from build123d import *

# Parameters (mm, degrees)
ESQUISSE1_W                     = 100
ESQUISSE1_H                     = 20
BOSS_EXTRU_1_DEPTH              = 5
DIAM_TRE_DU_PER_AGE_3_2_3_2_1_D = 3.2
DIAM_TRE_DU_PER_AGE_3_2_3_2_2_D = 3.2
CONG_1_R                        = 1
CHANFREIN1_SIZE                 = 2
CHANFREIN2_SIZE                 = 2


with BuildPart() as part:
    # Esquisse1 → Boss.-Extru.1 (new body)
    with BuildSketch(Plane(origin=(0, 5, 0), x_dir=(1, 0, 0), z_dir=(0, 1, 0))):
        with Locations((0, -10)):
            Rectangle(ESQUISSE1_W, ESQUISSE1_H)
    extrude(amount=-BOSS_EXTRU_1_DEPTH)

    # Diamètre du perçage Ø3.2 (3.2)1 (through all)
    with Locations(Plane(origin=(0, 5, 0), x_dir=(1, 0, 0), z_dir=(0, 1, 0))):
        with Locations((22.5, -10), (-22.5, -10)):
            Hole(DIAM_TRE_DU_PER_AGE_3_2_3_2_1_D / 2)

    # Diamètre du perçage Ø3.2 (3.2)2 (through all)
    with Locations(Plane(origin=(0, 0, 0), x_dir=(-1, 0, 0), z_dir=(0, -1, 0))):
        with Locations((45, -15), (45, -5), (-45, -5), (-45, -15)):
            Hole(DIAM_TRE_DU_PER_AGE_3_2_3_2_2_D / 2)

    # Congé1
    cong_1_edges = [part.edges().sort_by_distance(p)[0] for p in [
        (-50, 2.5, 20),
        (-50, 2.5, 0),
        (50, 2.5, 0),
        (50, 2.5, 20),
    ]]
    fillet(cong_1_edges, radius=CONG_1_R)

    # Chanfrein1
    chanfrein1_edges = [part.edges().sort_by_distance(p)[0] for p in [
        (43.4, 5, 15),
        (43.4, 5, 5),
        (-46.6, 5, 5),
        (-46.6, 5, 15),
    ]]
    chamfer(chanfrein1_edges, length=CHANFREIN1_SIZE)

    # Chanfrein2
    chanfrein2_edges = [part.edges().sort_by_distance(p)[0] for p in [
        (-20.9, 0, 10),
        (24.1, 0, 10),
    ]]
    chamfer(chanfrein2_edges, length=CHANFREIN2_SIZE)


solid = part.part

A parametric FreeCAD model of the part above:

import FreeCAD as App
import Part
import Sketcher
Q = App.Units.Quantity


def edges_at(feature, points):
    """Names of the edges that pass closest to the given points."""
    edges = feature.Shape.Edges
    near = lambda p: min(range(len(edges)), key=lambda i: edges[i].distToShape(Part.Vertex(*p))[0])
    return sorted({f"Edge{near(p) + 1}" for p in points})


def add_polygon(sketch, points):
    """Adds a closed chain of lines whose ends are joined by coincident constraints."""
    first, n = sketch.GeometryCount, len(points)
    for a, b in zip(points, points[1:] + points[:1]):
        sketch.addGeometry(Part.LineSegment(App.Vector(*a, 0), App.Vector(*b, 0)), False)
    for i in range(n):
        sketch.addConstraint(Sketcher.Constraint("Coincident", first + i, 2, first + (i + 1) % n, 1))

doc = App.newDocument("Part")
body = doc.addObject("PartDesign::Body", "Body")

sketch1 = body.newObject("Sketcher::SketchObject", "Sketch")
sketch1.AttachmentSupport = (doc.getObject("XZ_Plane"), [""])
sketch1.MapMode = "FlatFace"
sketch1.AttachmentOffset = App.Placement(App.Vector(0, 0, -5), App.Rotation())
add_polygon(sketch1, [(-50, 0), (-50, 20), (50, 20), (50, 0)])
sketch1.addConstraint(Sketcher.Constraint("Vertical", 0))
sketch1.addConstraint(Sketcher.Constraint("Horizontal", 1))
sketch1.addConstraint(Sketcher.Constraint("Vertical", 2))
sketch1.addConstraint(Sketcher.Constraint("Horizontal", 3))
sketch1.addConstraint(Sketcher.Constraint("Symmetric", 2, 2, 3, 2, -1, 1))
sketch1.addConstraint(Sketcher.Constraint("DistanceX", 1, 1, 1, 2, Q("100 mm")))
sketch1.addConstraint(Sketcher.Constraint("DistanceY", 0, 1, 0, 2, Q("20 mm")))
pad1 = body.newObject("PartDesign::Pad", "Pad")
pad1.Profile = sketch1
pad1.Length = 5

sketch2 = body.newObject("Sketcher::SketchObject", "Sketch001")
sketch2.AttachmentSupport = (doc.getObject("XZ_Plane"), [""])
sketch2.MapMode = "FlatFace"
sketch2.AttachmentOffset = App.Placement(App.Vector(0, 0, -5), App.Rotation())
sketch2.addGeometry(Part.Circle(App.Vector(22.5, 10, 0), App.Vector(0, 0, 1), 1.6), False)
sketch2.addGeometry(Part.Circle(App.Vector(-22.5, 10, 0), App.Vector(0, 0, 1), 1.6), False)
sketch2.addConstraint(Sketcher.Constraint("Equal", 0, 1))
sketch2.addConstraint(Sketcher.Constraint("Symmetric", 0, 3, 1, 3, -2))
sketch2.addConstraint(Sketcher.Constraint("Diameter", 0, Q("3.2 mm")))
sketch2.addConstraint(Sketcher.Constraint("DistanceY", -1, 1, 0, 3, Q("10 mm")))
sketch2.addConstraint(Sketcher.Constraint("DistanceX", 1, 3, 0, 3, Q("45 mm")))
doc.recompute()
hole = body.newObject("PartDesign::Hole", "Hole")
hole.Profile = sketch2
hole.ThreadType = "None"
hole.Diameter = 3.2
hole.DepthType = "ThroughAll"
hole.Reversed = True

sketch3 = body.newObject("Sketcher::SketchObject", "Sketch002")
sketch3.AttachmentSupport = (doc.getObject("XZ_Plane"), [""])
sketch3.MapMode = "FlatFace"
sketch3.addGeometry(Part.Circle(App.Vector(-45, 15, 0), App.Vector(0, 0, 1), 1.6), False)
sketch3.addGeometry(Part.Circle(App.Vector(-45, 5, 0), App.Vector(0, 0, 1), 1.6), False)
sketch3.addGeometry(Part.Circle(App.Vector(45, 5, 0), App.Vector(0, 0, 1), 1.6), False)
sketch3.addGeometry(Part.Circle(App.Vector(45, 15, 0), App.Vector(0, 0, 1), 1.6), False)
sketch3.addConstraint(Sketcher.Constraint("Equal", 0, 1))
sketch3.addConstraint(Sketcher.Constraint("Equal", 1, 2))
sketch3.addConstraint(Sketcher.Constraint("Equal", 2, 3))
sketch3.addConstraint(Sketcher.Constraint("Symmetric", 1, 3, 2, 3, -2))
sketch3.addConstraint(Sketcher.Constraint("Symmetric", 0, 3, 3, 3, -2))
sketch3.addConstraint(Sketcher.Constraint("Vertical", 0, 3, 1, 3))
sketch3.addConstraint(Sketcher.Constraint("Diameter", 0, Q("3.2 mm")))
sketch3.addConstraint(Sketcher.Constraint("DistanceX", 0, 3, -1, 1, Q("45 mm")))
sketch3.addConstraint(Sketcher.Constraint("DistanceY", -1, 1, 0, 3, Q("15 mm")))
sketch3.addConstraint(Sketcher.Constraint("DistanceY", -1, 1, 1, 3, Q("5 mm")))
doc.recompute()
hole2 = body.newObject("PartDesign::Hole", "Hole001")
hole2.Profile = sketch3
hole2.ThreadType = "None"
hole2.Diameter = 3.2
hole2.DepthType = "ThroughAll"
doc.recompute()

fillet = body.newObject("PartDesign::Fillet", "Fillet")
fillet.Base = (hole2, edges_at(hole2, [
    (-50, 2.5, 20),
    (-50, 2.5, 0),
    (50, 2.5, 0),
    (50, 2.5, 20),
]))
fillet.Radius = 1
doc.recompute()

chamfer = body.newObject("PartDesign::Chamfer", "Chamfer")
chamfer.Base = (fillet, edges_at(fillet, [
    (43.4, 5, 15),
    (43.4, 5, 5),
    (-46.6, 5, 5),
    (-46.6, 5, 15),
]))
chamfer.Size = 2
doc.recompute()

chamfer2 = body.newObject("PartDesign::Chamfer", "Chamfer001")
chamfer2.Base = (chamfer, edges_at(chamfer, [(-20.9, 0, 10), (24.1, 0, 10)]))
chamfer2.Size = 2

doc.recompute()
